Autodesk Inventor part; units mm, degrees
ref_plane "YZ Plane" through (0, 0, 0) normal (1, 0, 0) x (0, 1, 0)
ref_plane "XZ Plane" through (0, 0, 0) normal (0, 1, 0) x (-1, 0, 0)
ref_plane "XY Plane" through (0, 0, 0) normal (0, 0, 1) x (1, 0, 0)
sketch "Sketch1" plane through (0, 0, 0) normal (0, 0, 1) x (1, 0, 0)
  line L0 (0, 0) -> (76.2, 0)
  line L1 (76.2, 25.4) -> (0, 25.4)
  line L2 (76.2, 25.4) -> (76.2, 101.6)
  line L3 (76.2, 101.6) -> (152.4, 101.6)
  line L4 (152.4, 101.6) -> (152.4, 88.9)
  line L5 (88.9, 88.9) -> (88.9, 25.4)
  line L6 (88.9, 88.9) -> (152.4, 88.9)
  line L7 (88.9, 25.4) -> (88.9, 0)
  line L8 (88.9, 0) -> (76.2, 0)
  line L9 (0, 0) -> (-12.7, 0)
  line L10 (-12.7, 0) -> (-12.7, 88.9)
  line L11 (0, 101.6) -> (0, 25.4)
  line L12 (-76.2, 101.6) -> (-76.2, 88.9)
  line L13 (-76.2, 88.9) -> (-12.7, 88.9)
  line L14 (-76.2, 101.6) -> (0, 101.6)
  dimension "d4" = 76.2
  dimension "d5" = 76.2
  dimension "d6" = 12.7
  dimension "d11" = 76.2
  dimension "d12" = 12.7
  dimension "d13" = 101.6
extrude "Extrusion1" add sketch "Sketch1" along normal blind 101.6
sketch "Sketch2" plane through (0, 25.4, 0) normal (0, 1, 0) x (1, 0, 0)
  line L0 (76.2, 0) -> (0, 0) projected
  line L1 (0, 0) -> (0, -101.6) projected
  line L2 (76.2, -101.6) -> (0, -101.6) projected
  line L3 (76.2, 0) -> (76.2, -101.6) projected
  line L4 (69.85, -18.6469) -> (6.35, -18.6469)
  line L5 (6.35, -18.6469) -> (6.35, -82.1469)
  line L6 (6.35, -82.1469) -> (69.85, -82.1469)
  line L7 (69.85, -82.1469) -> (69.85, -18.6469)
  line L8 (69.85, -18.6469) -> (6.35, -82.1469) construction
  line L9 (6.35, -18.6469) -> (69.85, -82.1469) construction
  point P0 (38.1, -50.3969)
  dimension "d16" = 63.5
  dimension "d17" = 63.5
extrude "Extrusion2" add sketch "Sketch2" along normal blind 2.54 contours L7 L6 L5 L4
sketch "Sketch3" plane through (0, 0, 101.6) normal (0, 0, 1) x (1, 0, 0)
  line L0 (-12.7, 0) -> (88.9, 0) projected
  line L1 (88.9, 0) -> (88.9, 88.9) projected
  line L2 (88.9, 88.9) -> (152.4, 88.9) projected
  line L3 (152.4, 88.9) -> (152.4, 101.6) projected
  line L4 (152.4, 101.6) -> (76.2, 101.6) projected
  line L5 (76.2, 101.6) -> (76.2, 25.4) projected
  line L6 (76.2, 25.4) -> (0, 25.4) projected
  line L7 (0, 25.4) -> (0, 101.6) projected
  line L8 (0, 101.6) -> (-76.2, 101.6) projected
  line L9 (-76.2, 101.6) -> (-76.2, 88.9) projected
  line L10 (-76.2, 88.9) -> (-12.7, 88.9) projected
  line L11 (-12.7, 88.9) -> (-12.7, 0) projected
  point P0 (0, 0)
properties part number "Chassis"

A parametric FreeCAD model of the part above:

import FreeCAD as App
import Part
import Sketcher
Q = App.Units.Quantity

doc = App.newDocument("Part")
params = doc.addObject("Spreadsheet::Sheet", "Params")
for row, (alias, value) in enumerate([
    ("sketch1_width", "4 in"),
    ("sketch1_width2", "3 in"),
    ("sketch1_height", "0.5 in"),
    ("pad1_length", "4 in"),
    ("sketch2_width", "2.5 in"),
    ("pad2_length", "0.1 in"),
], start=1):
    params.set(f"A{row}", alias)
    params.set(f"B{row}", "=" + value)
    params.setAlias(f"B{row}", alias)

body = doc.addObject("PartDesign::Body", "Body")

# Sketch on XY plane
sketch1 = doc.addObject("Sketcher::SketchObject", "Sketch")
body.addObject(sketch1)
sketch1.AttachmentSupport = (doc.XY_Plane, [""])
sketch1.MapMode = "FlatFace"
sketch1.addGeometry([
    Part.LineSegment(App.Vector(-12.7, 0, 0), App.Vector(88.9, 0, 0)),  # 0
    Part.LineSegment(App.Vector(88.9, 0, 0), App.Vector(88.9, 88.9, 0)),  # 1
    Part.LineSegment(App.Vector(88.9, 88.9, 0), App.Vector(152.4, 88.9, 0)),  # 2
    Part.LineSegment(App.Vector(152.4, 88.9, 0), App.Vector(152.4, 101.6, 0)),  # 3
    Part.LineSegment(App.Vector(152.4, 101.6, 0), App.Vector(76.2, 101.6, 0)),  # 4
    Part.LineSegment(App.Vector(76.2, 101.6, 0), App.Vector(76.2, 25.4, 0)),  # 5
    Part.LineSegment(App.Vector(76.2, 25.4, 0), App.Vector(0, 25.4, 0)),  # 6
    Part.LineSegment(App.Vector(0, 25.4, 0), App.Vector(0, 101.6, 0)),  # 7
    Part.LineSegment(App.Vector(0, 101.6, 0), App.Vector(-76.2, 101.6, 0)),  # 8
    Part.LineSegment(App.Vector(-76.2, 101.6, 0), App.Vector(-76.2, 88.9, 0)),  # 9
    Part.LineSegment(App.Vector(-76.2, 88.9, 0), App.Vector(-12.7, 88.9, 0)),  # 10
    Part.LineSegment(App.Vector(-12.7, 88.9, 0), App.Vector(-12.7, 0, 0)),  # 11
], False)
sketch1.addConstraint([
    Sketcher.Constraint("Coincident", 0, 2, 1, 1),
    Sketcher.Constraint("Coincident", 1, 2, 2, 1),
    Sketcher.Constraint("Coincident", 2, 2, 3, 1),
    Sketcher.Constraint("Coincident", 3, 2, 4, 1),
    Sketcher.Constraint("Coincident", 4, 2, 5, 1),
    Sketcher.Constraint("Coincident", 5, 2, 6, 1),
    Sketcher.Constraint("Coincident", 6, 2, 7, 1),
    Sketcher.Constraint("Coincident", 7, 2, 8, 1),
    Sketcher.Constraint("Coincident", 8, 2, 9, 1),
    Sketcher.Constraint("Coincident", 9, 2, 10, 1),
    Sketcher.Constraint("Coincident", 10, 2, 11, 1),
    Sketcher.Constraint("Coincident", 11, 2, 0, 1),
    Sketcher.Constraint("Horizontal", 0),
    Sketcher.Constraint("Vertical", 1),
    Sketcher.Constraint("Horizontal", 2),
    Sketcher.Constraint("Vertical", 3),
    Sketcher.Constraint("Horizontal", 4),
    Sketcher.Constraint("Vertical", 5),
    Sketcher.Constraint("Horizontal", 6),
    Sketcher.Constraint("Vertical", 7),
    Sketcher.Constraint("Horizontal", 8),
    Sketcher.Constraint("Vertical", 9),
    Sketcher.Constraint("Horizontal", 10),
    Sketcher.Constraint("Vertical", 11),
    Sketcher.Constraint("Symmetric", 4, 2, 8, 2, -2),
    Sketcher.Constraint("PointOnObject", 0, 2, -1),
    Sketcher.Constraint("PointOnObject", 6, 2, -2),
    Sketcher.Constraint("Horizontal", 2, 2, 9, 2),
    Sketcher.Constraint("Equal", 4, 6),
    Sketcher.Constraint("Equal", 2, 10),
    Sketcher.Constraint("Equal", 8, 5),
    Sketcher.Constraint("DistanceX", 0, 1, 0, 2, Q("4 in")),
    Sketcher.Constraint("DistanceX", 4, 2, 4, 1, Q("3 in")),
    Sketcher.Constraint("DistanceY", 3, 1, 3, 2, Q("0.5 in")),
    Sketcher.Constraint("DistanceY", -1, 1, 3, 2, Q("4 in")),
])
sketch1.setExpression("Constraints[31]", "Params.sketch1_width")
sketch1.setExpression("Constraints[32]", "Params.sketch1_width2")
sketch1.setExpression("Constraints[33]", "Params.sketch1_height")
pad1 = doc.addObject("PartDesign::Pad", "Pad")
body.addObject(pad1)
pad1.Profile = sketch1
pad1.setExpression("Length", "Params.pad1_length")

# Sketch on XZ plane
sketch2 = doc.addObject("Sketcher::SketchObject", "Sketch001")
body.addObject(sketch2)
sketch2.AttachmentSupport = (doc.XZ_Plane, [""])
sketch2.MapMode = "FlatFace"
sketch2.AttachmentOffset = App.Placement(App.Vector(0, 0, -1 * 25.4), App.Rotation())
sketch2.addGeometry([
    Part.LineSegment(App.Vector(69.85, 82.1469, 0), App.Vector(69.85, 18.6469, 0)),
    Part.LineSegment(App.Vector(69.85, 18.6469, 0), App.Vector(6.35, 18.6469, 0)),
    Part.LineSegment(App.Vector(6.35, 18.6469, 0), App.Vector(6.35, 82.1469, 0)),
    Part.LineSegment(App.Vector(6.35, 82.1469, 0), App.Vector(69.85, 82.1469, 0)),
], False)
sketch2.addConstraint([
    Sketcher.Constraint("Coincident", 0, 2, 1, 1),
    Sketcher.Constraint("Coincident", 1, 2, 2, 1),
    Sketcher.Constraint("Coincident", 2, 2, 3, 1),
    Sketcher.Constraint("Coincident", 3, 2, 0, 1),
    Sketcher.Constraint("Vertical", 0),
    Sketcher.Constraint("Horizontal", 1),
    Sketcher.Constraint("Vertical", 2),
    Sketcher.Constraint("Horizontal", 3),
    Sketcher.Constraint("Equal", 3, 0),
    Sketcher.Constraint("DistanceX", 1, 2, 1, 1, Q("2.5 in")),
    Sketcher.Constraint("DistanceX", -1, 1, 0, 2, Q("2.75 in")),
    Sketcher.Constraint("DistanceY", -1, 1, 0, 2, Q("18.647 mm")),
])
sketch2.setExpression("Constraints[9]", "Params.sketch2_width")
pad2 = doc.addObject("PartDesign::Pad", "Pad001")
body.addObject(pad2)
pad2.Profile = sketch2
pad2.setExpression("Length", "Params.pad2_length")
pad2.Reversed = True

doc.recompute()
